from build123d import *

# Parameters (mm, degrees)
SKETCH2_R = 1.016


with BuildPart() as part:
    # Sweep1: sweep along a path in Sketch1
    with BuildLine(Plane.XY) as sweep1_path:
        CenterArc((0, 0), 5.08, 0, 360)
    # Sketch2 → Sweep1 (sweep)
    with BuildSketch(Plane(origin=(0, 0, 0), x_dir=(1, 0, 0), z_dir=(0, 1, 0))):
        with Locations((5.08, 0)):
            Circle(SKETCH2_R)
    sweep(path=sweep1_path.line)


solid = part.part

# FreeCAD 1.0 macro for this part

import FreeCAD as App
import Part
import Sketcher

V = App.Vector
Q = App.Units.Quantity

doc = App.newDocument("Part")
body = doc.addObject("PartDesign::Body", "Body")

# Sketch on XZ plane
sketch1 = body.newObject("Sketcher::SketchObject", "Sketch")
sketch1.AttachmentSupport = (doc.getObject("XZ_Plane"), [""])
sketch1.MapMode = "FlatFace"
sketch1.addGeometry(Part.Circle(V(5.1, 0, 0), V(0, 0, 1), 1), False)
sketch1.addConstraint(Sketcher.Constraint("PointOnObject", 0, 3, -1))
sketch1.addConstraint(Sketcher.Constraint("Diameter", 0, Q("0.08 in")))
sketch1.addConstraint(Sketcher.Constraint("DistanceX", -1, 1, 0, 3, Q("0.2 in")))

# Sketch on XY plane
sketch2 = body.newObject("Sketcher::SketchObject", "Sketch001")
sketch2.AttachmentSupport = (doc.getObject("XY_Plane"), [""])
sketch2.MapMode = "FlatFace"
sketch2.addGeometry(Part.Circle(V(0, 0, 0), V(0, 0, 1), 5), False)
sketch2.addConstraint(Sketcher.Constraint("Coincident", 0, 3, -1, 1))
sketch2.addConstraint(Sketcher.Constraint("Diameter", 0, Q("0.4 in")))
doc.recompute()

additivepipe = body.newObject("PartDesign::AdditivePipe", "AdditivePipe")
additivepipe.Profile = sketch1
additivepipe.Spine = (sketch2, ["Edge1"])

doc.recompute()
